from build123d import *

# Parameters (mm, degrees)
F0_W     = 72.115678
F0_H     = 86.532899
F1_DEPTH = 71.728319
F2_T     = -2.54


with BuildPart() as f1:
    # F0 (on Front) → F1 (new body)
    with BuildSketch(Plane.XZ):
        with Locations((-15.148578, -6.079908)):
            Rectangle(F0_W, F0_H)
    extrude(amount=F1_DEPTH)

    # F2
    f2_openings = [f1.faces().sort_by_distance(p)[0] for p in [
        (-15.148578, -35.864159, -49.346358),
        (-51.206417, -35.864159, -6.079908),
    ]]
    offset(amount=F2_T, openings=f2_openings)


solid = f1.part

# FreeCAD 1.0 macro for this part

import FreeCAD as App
import Part
import Sketcher
from FreeCAD import Vector
Q = App.Units.Quantity


def faces_at(feature, points):
    """Names of the faces that lie closest to the given points."""
    faces = feature.Shape.Faces
    near = lambda p: min(range(len(faces)), key=lambda i: faces[i].distToShape(Part.Vertex(*p))[0])
    return sorted({f"Face{near(p) + 1}" for p in points})

doc = App.newDocument("Part")
body = doc.addObject("PartDesign::Body", "Body")

# Sketch on XZ plane
sketch1 = body.newObject("Sketcher::SketchObject", "Sketch")
sketch1.AttachmentSupport = (doc.getObject("XZ_Plane"), [""])
sketch1.MapMode = "FlatFace"
sketch1.addGeometry(Part.LineSegment(Vector(-51, 37, 0), Vector(-51, -49, 0)), False)
sketch1.addGeometry(Part.LineSegment(Vector(-51, -49, 0), Vector(21, -49, 0)), False)
sketch1.addGeometry(Part.LineSegment(Vector(21, -49, 0), Vector(21, 37, 0)), False)
sketch1.addGeometry(Part.LineSegment(Vector(21, 37, 0), Vector(-51, 37, 0)), False)
sketch1.addConstraint(Sketcher.Constraint("Coincident", 0, 2, 1, 1))
sketch1.addConstraint(Sketcher.Constraint("Coincident", 1, 2, 2, 1))
sketch1.addConstraint(Sketcher.Constraint("Coincident", 2, 2, 3, 1))
sketch1.addConstraint(Sketcher.Constraint("Coincident", 3, 2, 0, 1))
sketch1.addConstraint(Sketcher.Constraint("Vertical", 0))
sketch1.addConstraint(Sketcher.Constraint("Horizontal", 1))
sketch1.addConstraint(Sketcher.Constraint("Vertical", 2))
sketch1.addConstraint(Sketcher.Constraint("Horizontal", 3))
sketch1.addConstraint(Sketcher.Constraint("DistanceX", 1, 1, 1, 2, Q("2.8391999 in")))
sketch1.addConstraint(Sketcher.Constraint("DistanceY", 0, 2, 0, 1, 86.532899))
sketch1.addConstraint(Sketcher.Constraint("DistanceX", -1, 1, 1, 2, 20.909261))
sketch1.addConstraint(Sketcher.Constraint("DistanceY", -1, 1, 2, 2, 37.186541))
pad1 = body.newObject("PartDesign::Pad", "Pad")
pad1.Profile = sketch1
pad1.Length = 71.728319
doc.recompute()

thickness = body.newObject("PartDesign::Thickness", "Thickness")
thickness.Base = (pad1, faces_at(pad1, [(-15.149, -35.864, -49.346), (-51.206, -35.864, -6.08)]))
thickness.Value = Q("0.1 in")
thickness.Reversed = True
thickness.Join = "Arc"

doc.recompute()
